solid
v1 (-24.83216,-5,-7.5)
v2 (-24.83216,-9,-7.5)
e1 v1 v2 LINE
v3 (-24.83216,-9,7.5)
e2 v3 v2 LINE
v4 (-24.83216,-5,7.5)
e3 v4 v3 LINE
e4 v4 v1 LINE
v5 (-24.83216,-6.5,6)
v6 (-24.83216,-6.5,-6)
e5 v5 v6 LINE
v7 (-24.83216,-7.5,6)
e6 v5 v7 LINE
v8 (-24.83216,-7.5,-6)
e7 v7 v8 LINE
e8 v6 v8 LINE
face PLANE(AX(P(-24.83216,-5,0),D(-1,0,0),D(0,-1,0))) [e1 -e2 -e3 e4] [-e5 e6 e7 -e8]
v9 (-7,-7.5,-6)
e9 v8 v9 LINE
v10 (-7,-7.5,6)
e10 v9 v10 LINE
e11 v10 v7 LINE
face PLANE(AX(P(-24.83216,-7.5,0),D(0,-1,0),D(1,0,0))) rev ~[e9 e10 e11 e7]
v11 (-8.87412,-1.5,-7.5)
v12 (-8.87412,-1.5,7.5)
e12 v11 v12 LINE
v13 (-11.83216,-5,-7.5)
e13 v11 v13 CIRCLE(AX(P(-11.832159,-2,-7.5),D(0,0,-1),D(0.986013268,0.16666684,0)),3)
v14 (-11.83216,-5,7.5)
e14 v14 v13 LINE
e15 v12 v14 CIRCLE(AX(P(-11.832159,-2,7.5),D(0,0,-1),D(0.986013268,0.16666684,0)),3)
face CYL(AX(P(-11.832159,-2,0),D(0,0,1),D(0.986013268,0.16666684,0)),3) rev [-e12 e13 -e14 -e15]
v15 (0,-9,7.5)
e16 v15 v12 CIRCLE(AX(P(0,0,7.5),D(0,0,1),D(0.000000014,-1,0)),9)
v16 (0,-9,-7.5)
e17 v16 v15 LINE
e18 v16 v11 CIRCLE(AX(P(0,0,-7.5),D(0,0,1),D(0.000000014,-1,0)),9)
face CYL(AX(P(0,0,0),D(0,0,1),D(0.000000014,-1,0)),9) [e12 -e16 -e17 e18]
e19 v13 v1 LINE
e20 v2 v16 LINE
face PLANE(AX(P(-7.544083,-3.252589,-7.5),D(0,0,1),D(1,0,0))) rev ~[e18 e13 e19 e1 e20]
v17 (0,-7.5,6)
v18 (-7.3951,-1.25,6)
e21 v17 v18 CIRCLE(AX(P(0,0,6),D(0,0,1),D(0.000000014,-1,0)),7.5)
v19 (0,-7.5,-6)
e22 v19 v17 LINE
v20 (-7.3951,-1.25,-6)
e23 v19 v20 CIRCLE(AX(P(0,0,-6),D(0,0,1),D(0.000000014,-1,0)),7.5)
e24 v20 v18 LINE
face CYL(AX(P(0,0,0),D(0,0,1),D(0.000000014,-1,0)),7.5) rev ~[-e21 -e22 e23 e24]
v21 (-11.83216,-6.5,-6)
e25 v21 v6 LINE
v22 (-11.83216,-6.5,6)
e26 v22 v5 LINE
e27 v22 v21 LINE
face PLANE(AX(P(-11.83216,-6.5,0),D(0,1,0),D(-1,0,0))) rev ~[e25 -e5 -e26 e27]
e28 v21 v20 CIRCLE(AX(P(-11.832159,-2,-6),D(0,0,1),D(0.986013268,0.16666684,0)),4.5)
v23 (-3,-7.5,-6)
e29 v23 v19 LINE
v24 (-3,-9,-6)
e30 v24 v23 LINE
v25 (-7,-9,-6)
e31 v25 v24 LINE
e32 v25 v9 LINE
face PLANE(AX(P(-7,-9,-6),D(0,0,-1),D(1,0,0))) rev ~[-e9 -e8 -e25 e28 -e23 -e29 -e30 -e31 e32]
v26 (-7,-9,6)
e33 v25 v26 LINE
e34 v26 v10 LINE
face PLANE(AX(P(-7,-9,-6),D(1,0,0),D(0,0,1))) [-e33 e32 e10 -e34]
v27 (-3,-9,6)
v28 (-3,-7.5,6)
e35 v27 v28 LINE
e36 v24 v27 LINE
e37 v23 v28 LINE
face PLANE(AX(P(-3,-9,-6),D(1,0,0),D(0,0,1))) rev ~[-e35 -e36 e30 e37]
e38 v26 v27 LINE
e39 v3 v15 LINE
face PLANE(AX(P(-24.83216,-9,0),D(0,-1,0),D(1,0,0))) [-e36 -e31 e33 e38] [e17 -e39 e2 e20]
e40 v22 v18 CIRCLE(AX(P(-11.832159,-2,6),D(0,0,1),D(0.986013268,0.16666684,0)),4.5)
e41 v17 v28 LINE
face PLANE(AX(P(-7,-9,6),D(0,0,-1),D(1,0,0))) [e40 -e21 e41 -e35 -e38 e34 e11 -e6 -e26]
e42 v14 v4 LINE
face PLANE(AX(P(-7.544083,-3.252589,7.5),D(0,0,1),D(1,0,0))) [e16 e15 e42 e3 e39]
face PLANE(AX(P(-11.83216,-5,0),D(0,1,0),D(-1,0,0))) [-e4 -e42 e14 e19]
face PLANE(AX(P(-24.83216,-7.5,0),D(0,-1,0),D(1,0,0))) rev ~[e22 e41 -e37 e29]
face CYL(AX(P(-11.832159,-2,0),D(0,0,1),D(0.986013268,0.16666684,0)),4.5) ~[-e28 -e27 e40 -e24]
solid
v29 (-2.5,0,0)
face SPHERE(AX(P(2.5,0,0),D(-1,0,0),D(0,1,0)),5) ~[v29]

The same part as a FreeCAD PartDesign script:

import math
import FreeCAD as App
import Part
import Sketcher

V = App.Vector


def faces_at(feature, points):
    """Names of the faces that lie closest to the given points."""
    faces = feature.Shape.Faces
    near = lambda p: min(range(len(faces)), key=lambda i: faces[i].distToShape(Part.Vertex(*p))[0])
    return sorted({f"Face{near(p) + 1}" for p in points})

doc = App.newDocument("Part")
body = doc.addObject("PartDesign::Body", "Body")

sketch1 = doc.addObject("Sketcher::SketchObject", "Sketch")
body.addObject(sketch1)
sketch1.AttachmentSupport = (doc.XY_Plane, [""])
sketch1.MapMode = "FlatFace"
sketch1.addGeometry([
    Part.LineSegment(V(-24.8, -9, 0), V(0, -9, 0)),
    Part.ArcOfCircle(Part.Circle(V(0, 0, 0), V(0, 0, 1), 9), math.radians(-90), math.radians(190)),
    Part.ArcOfCircle(Part.Circle(V(-11.8, -2, 0), V(0, 0, 1), 3), math.radians(-90), math.radians(10)),
    Part.LineSegment(V(-11.8, -5, 0), V(-24.8, -5, 0)),
    Part.LineSegment(V(-24.8, -5, 0), V(-24.8, -9, 0)),
], False)
sketch1.addConstraint([
    Sketcher.Constraint("Tangent", 0, 2, 1, 1),
    Sketcher.Constraint("Tangent", 1, 2, 2, 2),
    Sketcher.Constraint("Tangent", 2, 1, 3, 1),
    Sketcher.Constraint("Coincident", 3, 2, 4, 1),
    Sketcher.Constraint("Coincident", 4, 2, 0, 1),
    Sketcher.Constraint("Horizontal", 0),
    Sketcher.Constraint("Horizontal", 3),
    Sketcher.Constraint("Vertical", 4),
    Sketcher.Constraint("Coincident", 1, 3, -1, 1),
    Sketcher.Constraint("Radius", 1, 9.0),
    Sketcher.Constraint("Radius", 2, 3.0),
    Sketcher.Constraint("DistanceX", 3, 2, 3, 1, 13.0),
    Sketcher.Constraint("DistanceY", 4, 2, 4, 1, 4.0),
])
pad1 = doc.addObject("PartDesign::Pad", "Pad")
body.addObject(pad1)
pad1.Profile = sketch1
pad1.Length = 15
pad1.Midplane = True
doc.recompute()

thickness = doc.addObject("PartDesign::Thickness", "Thickness")
body.addObject(thickness)
thickness.Base = (pad1, faces_at(pad1, [(-24.832, -7, 0)]))
thickness.Value = 1.5
thickness.Reversed = True
thickness.Join = "Arc"

sketch2 = doc.addObject("Sketcher::SketchObject", "Sketch001")
body.addObject(sketch2)
sketch2.AttachmentSupport = (doc.XZ_Plane, [""])
sketch2.MapMode = "FlatFace"
sketch2.AttachmentOffset = App.Placement(V(0, 0, 9), App.Rotation())
sketch2.addGeometry([
    Part.LineSegment(V(-7, 6, 0), V(-7, -6, 0)),
    Part.LineSegment(V(-7, -6, 0), V(-3, -6, 0)),
    Part.LineSegment(V(-3, -6, 0), V(-3, 6, 0)),
    Part.LineSegment(V(-3, 6, 0), V(-7, 6, 0)),
], False)
sketch2.addConstraint([
    Sketcher.Constraint("Coincident", 0, 2, 1, 1),
    Sketcher.Constraint("Coincident", 1, 2, 2, 1),
    Sketcher.Constraint("Coincident", 2, 2, 3, 1),
    Sketcher.Constraint("Coincident", 3, 2, 0, 1),
    Sketcher.Constraint("Vertical", 0),
    Sketcher.Constraint("Horizontal", 1),
    Sketcher.Constraint("Vertical", 2),
    Sketcher.Constraint("Horizontal", 3),
    Sketcher.Constraint("DistanceX", 1, 1, 1, 2, 4.0),
    Sketcher.Constraint("DistanceY", 0, 2, 0, 1, 12.0),
    Sketcher.Constraint("DistanceX", 0, 2, -1, 1, 7.0),
    Sketcher.Constraint("DistanceY", 0, 2, -1, 1, 6.0),
])
pocket1 = doc.addObject("PartDesign::Pocket", "Pocket")
body.addObject(pocket1)
pocket1.Profile = sketch2
pocket1.Length = 1.5
body2 = doc.addObject("PartDesign::Body", "Body001")

sketch3 = doc.addObject("Sketcher::SketchObject", "Sketch002")
body2.addObject(sketch3)
sketch3.AttachmentSupport = (doc.getObject("XY_Plane001"), [""])
sketch3.MapMode = "FlatFace"
sketch3.addGeometry([
    Part.ArcOfCircle(Part.Circle(V(2, 0, 0), V(0, 0, 1), 5), math.radians(0), math.radians(180)),
    Part.LineSegment(V(-2, 0, 0), V(8, 0, 0)),
], False)
sketch3.addConstraint([
    Sketcher.Constraint("Coincident", 0, 1, 1, 2),
    Sketcher.Constraint("Coincident", 1, 1, 0, 2),
    Sketcher.Constraint("Horizontal", 1),
    Sketcher.Constraint("PointOnObject", 0, 3, -1),
    Sketcher.Constraint("PointOnObject", 0, 1, -1),
    Sketcher.Constraint("Radius", 0, 5.0),
    Sketcher.Constraint("DistanceX", -1, 1, 0, 3, 2.5),
])
revolution = doc.addObject("PartDesign::Revolution", "Revolution")
body2.addObject(revolution)
revolution.Profile = sketch3
revolution.ReferenceAxis = (sketch3, ["H_Axis"])
revolution.Angle = 360

doc.recompute()
